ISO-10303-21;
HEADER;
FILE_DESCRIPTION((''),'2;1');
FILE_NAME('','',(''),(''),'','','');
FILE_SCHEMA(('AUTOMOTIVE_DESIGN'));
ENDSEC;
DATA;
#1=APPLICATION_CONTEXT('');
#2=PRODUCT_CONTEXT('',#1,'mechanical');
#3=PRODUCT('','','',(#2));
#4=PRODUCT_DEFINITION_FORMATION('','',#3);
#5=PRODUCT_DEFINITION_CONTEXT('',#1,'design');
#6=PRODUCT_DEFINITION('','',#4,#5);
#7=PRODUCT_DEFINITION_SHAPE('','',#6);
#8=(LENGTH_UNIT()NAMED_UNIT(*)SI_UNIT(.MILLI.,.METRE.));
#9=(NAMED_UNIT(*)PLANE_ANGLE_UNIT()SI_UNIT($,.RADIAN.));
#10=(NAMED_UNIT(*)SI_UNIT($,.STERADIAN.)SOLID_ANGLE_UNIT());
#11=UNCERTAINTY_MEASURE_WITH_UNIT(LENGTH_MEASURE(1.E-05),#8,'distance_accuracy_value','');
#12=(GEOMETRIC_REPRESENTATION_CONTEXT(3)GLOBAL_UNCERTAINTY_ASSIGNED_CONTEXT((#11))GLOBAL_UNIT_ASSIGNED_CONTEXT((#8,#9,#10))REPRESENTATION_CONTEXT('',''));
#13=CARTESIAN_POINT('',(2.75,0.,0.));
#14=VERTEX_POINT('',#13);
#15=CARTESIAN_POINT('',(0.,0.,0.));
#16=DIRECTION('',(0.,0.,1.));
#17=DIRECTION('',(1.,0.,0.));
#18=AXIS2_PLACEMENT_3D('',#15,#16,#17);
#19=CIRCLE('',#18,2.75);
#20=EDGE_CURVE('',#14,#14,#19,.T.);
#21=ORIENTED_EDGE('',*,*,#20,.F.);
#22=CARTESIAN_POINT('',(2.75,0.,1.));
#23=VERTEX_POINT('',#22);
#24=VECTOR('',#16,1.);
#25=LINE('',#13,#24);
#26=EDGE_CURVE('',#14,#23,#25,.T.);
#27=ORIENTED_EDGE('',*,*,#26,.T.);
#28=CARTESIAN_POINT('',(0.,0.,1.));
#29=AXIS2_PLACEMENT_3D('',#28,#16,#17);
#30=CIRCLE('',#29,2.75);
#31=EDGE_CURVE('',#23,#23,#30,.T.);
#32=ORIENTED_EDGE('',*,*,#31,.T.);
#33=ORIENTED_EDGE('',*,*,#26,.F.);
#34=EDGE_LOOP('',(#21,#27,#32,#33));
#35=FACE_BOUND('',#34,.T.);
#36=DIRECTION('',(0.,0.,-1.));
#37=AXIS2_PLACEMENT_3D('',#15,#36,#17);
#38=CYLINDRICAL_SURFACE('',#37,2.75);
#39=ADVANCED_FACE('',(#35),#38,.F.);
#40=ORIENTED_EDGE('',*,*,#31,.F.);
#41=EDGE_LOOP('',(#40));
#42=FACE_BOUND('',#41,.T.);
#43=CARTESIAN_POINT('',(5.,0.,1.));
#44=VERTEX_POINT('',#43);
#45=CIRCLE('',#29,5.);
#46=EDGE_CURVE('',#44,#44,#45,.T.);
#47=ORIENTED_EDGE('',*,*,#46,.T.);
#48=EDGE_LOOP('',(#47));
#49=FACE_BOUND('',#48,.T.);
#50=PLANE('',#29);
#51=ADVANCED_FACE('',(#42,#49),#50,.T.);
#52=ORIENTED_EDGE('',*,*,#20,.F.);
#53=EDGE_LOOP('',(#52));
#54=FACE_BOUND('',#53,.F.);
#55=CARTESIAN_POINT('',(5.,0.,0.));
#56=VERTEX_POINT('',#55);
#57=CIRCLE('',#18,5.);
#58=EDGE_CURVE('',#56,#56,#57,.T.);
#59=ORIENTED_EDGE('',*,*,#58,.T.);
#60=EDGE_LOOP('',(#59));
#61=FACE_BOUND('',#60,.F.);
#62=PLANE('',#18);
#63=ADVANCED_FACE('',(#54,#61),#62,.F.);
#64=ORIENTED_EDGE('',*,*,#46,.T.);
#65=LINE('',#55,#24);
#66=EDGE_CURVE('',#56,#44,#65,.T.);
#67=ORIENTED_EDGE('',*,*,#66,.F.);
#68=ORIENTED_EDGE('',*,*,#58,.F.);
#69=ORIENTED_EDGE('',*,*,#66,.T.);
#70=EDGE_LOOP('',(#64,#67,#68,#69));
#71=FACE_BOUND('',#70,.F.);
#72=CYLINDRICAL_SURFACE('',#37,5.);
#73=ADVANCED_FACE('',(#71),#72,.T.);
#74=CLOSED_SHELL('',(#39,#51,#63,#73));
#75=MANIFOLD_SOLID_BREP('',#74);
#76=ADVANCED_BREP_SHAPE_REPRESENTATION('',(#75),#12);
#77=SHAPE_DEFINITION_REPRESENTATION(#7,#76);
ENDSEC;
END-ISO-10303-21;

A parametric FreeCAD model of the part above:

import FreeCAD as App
import Part
import Sketcher
Q = App.Units.Quantity

doc = App.newDocument("Part")
body = doc.addObject("PartDesign::Body", "Body")

# Sketch on XY plane
sketch1 = doc.addObject("Sketcher::SketchObject", "Sketch")
body.addObject(sketch1)
sketch1.AttachmentSupport = (doc.XY_Plane, [""])
sketch1.MapMode = "FlatFace"
sketch1.addGeometry([
    Part.Circle(App.Vector(0, 0, 0), App.Vector(0, 0, 1), 5),
    Part.Circle(App.Vector(0, 0, 0), App.Vector(0, 0, 1), 2.75),
], False)
sketch1.addConstraint([
    Sketcher.Constraint("Coincident", 0, 3, -1, 1),
    Sketcher.Constraint("Coincident", 1, 3, -1, 1),
    Sketcher.Constraint("Diameter", 0, Q("10 mm")),
    Sketcher.Constraint("Diameter", 1, Q("5.5 mm")),
])
pad1 = doc.addObject("PartDesign::Pad", "Pad")
body.addObject(pad1)
pad1.Profile = sketch1
pad1.Length = 1

doc.recompute()
